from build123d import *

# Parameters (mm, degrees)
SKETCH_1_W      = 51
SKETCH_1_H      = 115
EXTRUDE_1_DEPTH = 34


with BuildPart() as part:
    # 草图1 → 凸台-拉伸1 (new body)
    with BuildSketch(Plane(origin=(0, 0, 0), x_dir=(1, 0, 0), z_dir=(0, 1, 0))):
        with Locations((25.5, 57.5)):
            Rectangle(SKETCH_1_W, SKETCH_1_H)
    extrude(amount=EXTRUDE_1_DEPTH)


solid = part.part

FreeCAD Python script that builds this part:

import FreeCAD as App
import Part
import Sketcher

doc = App.newDocument("Part")
body = doc.addObject("PartDesign::Body", "Body")

# Sketch on XZ plane
sketch1 = body.newObject("Sketcher::SketchObject", "Sketch")
sketch1.AttachmentSupport = (doc.getObject("XZ_Plane"), [""])
sketch1.MapMode = "FlatFace"
sketch1.addGeometry([
    Part.LineSegment(App.Vector(0, -115, 0), App.Vector(0, 0, 0)),
    Part.LineSegment(App.Vector(0, 0, 0), App.Vector(51, 0, 0)),
    Part.LineSegment(App.Vector(51, 0, 0), App.Vector(51, -115, 0)),
    Part.LineSegment(App.Vector(51, -115, 0), App.Vector(0, -115, 0)),
], False)
sketch1.addConstraint([
    Sketcher.Constraint("Coincident", 0, 2, 1, 1),
    Sketcher.Constraint("Coincident", 1, 2, 2, 1),
    Sketcher.Constraint("Coincident", 2, 2, 3, 1),
    Sketcher.Constraint("Coincident", 3, 2, 0, 1),
    Sketcher.Constraint("Vertical", 0),
    Sketcher.Constraint("Horizontal", 1),
    Sketcher.Constraint("Vertical", 2),
    Sketcher.Constraint("Horizontal", 3),
    Sketcher.Constraint("Coincident", 0, 2, -1, 1),
    Sketcher.Constraint("DistanceX", 1, 1, 1, 2, 51.0),
    Sketcher.Constraint("DistanceY", 0, 1, 0, 2, 115.0),
])
pad1 = body.newObject("PartDesign::Pad", "Pad")
pad1.Profile = sketch1
pad1.Length = 34
pad1.Reversed = True

doc.recompute()
